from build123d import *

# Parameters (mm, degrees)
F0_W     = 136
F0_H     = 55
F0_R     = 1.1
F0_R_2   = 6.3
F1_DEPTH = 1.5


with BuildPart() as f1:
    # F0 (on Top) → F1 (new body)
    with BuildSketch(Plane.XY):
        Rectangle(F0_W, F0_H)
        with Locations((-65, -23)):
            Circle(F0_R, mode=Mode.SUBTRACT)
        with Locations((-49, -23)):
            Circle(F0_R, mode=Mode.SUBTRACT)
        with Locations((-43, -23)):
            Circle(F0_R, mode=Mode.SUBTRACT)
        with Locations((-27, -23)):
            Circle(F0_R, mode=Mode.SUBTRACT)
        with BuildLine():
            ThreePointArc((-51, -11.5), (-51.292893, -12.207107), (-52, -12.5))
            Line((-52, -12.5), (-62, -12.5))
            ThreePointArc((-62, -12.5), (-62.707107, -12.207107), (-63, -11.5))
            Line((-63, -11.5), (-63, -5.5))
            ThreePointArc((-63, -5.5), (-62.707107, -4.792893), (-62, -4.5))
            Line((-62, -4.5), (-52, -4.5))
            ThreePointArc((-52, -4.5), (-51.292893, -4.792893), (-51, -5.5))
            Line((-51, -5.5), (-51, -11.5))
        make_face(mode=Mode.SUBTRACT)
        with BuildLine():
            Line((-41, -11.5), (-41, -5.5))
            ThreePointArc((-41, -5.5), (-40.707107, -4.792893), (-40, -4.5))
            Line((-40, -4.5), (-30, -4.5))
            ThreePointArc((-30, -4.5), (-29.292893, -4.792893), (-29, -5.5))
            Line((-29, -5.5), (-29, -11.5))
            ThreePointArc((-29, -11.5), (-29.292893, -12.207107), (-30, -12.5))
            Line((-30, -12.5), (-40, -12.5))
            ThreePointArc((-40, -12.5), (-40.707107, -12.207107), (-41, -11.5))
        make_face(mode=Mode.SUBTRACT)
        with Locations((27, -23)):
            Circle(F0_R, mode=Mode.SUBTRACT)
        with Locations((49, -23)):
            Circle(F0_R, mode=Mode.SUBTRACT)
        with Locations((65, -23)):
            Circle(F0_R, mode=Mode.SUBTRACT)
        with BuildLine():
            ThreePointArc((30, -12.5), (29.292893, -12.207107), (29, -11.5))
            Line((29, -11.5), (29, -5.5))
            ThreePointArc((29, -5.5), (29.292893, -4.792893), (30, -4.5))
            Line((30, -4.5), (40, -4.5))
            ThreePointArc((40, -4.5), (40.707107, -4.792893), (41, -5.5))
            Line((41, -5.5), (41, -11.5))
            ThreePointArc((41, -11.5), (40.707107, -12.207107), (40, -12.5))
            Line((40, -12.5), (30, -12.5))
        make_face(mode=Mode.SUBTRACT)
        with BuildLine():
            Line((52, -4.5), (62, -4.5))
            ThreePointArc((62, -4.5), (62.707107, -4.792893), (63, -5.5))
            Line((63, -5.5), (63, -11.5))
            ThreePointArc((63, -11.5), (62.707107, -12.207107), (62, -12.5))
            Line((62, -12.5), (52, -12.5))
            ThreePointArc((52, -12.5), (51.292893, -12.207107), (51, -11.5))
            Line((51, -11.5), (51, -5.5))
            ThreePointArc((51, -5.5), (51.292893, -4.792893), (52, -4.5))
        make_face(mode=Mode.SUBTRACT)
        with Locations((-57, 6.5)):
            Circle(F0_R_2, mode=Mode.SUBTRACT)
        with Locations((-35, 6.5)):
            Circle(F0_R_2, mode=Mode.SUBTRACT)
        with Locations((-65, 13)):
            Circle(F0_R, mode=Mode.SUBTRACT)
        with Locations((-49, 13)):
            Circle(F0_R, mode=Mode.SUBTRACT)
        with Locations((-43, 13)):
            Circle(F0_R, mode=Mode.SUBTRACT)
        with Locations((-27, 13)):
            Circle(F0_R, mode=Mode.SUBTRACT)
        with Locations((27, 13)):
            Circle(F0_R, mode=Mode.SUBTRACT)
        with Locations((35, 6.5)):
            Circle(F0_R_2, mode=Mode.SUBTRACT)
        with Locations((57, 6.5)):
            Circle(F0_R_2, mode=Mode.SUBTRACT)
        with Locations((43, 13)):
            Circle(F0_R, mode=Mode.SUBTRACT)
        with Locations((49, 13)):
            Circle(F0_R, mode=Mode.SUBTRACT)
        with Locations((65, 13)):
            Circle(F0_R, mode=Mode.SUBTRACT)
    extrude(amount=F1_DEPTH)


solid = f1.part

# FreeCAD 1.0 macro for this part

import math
import FreeCAD as App
import Part
import Sketcher
from FreeCAD import Vector

doc = App.newDocument("Part")
body = doc.addObject("PartDesign::Body", "Body")

# Sketch on XY plane
sketch1 = body.newObject("Sketcher::SketchObject", "Sketch")
sketch1.AttachmentSupport = (doc.getObject("XY_Plane"), [""])
sketch1.MapMode = "FlatFace"
sketch1.addGeometry([
    Part.LineSegment(Vector(-68, 27.5, 0), Vector(-68, -27.5, 0)),  # 0
    Part.LineSegment(Vector(-68, -27.5, 0), Vector(68, -27.5, 0)),  # 1
    Part.LineSegment(Vector(68, -27.5, 0), Vector(68, 27.5, 0)),  # 2
    Part.LineSegment(Vector(68, 27.5, 0), Vector(-68, 27.5, 0)),  # 3
    Part.Circle(Vector(-65, -23, 0), Vector(0, 0, 1), 1.1),  # 4
    Part.Circle(Vector(-49, -23, 0), Vector(0, 0, 1), 1.1),  # 5
    Part.Circle(Vector(-43, -23, 0), Vector(0, 0, 1), 1.1),  # 6
    Part.Circle(Vector(-27, -23, 0), Vector(0, 0, 1), 1.1),  # 7
    Part.LineSegment(Vector(-51, -5.5, 0), Vector(-51, -11.5, 0)),  # 8
    Part.ArcOfCircle(Part.Circle(Vector(-51.999999, -11.500001, 0), Vector(0, 0, 1), 0.999999), math.radians(-90.000043), math.radians(0.000043)),  # 9
    Part.LineSegment(Vector(-52, -12.5, 0), Vector(-62, -12.5, 0)),  # 10
    Part.ArcOfCircle(Part.Circle(Vector(-62.000001, -11.500001, 0), Vector(0, 0, 1), 0.999999), math.radians(179.999957), math.radians(270.000043)),  # 11
    Part.LineSegment(Vector(-63, -11.5, 0), Vector(-63, -5.5, 0)),  # 12
    Part.ArcOfCircle(Part.Circle(Vector(-62.000001, -5.499999, 0), Vector(0, 0, 1), 0.999999), math.radians(89.999957), math.radians(180.000043)),  # 13
    Part.LineSegment(Vector(-62, -4.5, 0), Vector(-52, -4.5, 0)),  # 14
    Part.ArcOfCircle(Part.Circle(Vector(-51.999999, -5.499999, 0), Vector(0, 0, 1), 0.999999), math.radians(-0.000043), math.radians(90.000043)),  # 15
    Part.ArcOfCircle(Part.Circle(Vector(-40.000001, -11.500001, 0), Vector(0, 0, 1), 0.999999), math.radians(179.999957), math.radians(270.000043)),  # 16
    Part.LineSegment(Vector(-41, -11.5, 0), Vector(-41, -5.5, 0)),  # 17
    Part.ArcOfCircle(Part.Circle(Vector(-40.000001, -5.499999, 0), Vector(0, 0, 1), 0.999999), math.radians(89.999957), math.radians(180.000043)),  # 18
    Part.LineSegment(Vector(-40, -4.5, 0), Vector(-30, -4.5, 0)),  # 19
    Part.ArcOfCircle(Part.Circle(Vector(-29.999999, -5.499999, 0), Vector(0, 0, 1), 0.999999), math.radians(-0.000043), math.radians(90.000043)),  # 20
    Part.LineSegment(Vector(-29, -5.5, 0), Vector(-29, -11.5, 0)),  # 21
    Part.ArcOfCircle(Part.Circle(Vector(-29.999999, -11.500001, 0), Vector(0, 0, 1), 0.999999), math.radians(-90.000043), math.radians(0.000043)),  # 22
    Part.LineSegment(Vector(-30, -12.5, 0), Vector(-40, -12.5, 0)),  # 23
    Part.Circle(Vector(27, -23, 0), Vector(0, 0, 1), 1.1),  # 24
    Part.Circle(Vector(49, -23, 0), Vector(0, 0, 1), 1.1),  # 25
    Part.Circle(Vector(65, -23, 0), Vector(0, 0, 1), 1.1),  # 26
    Part.LineSegment(Vector(40, -12.5, 0), Vector(30, -12.5, 0)),  # 27
    Part.ArcOfCircle(Part.Circle(Vector(29.999999, -11.500001, 0), Vector(0, 0, 1), 0.999999), math.radians(179.999957), math.radians(270.000043)),  # 28
    Part.LineSegment(Vector(29, -11.5, 0), Vector(29, -5.5, 0)),  # 29
    Part.ArcOfCircle(Part.Circle(Vector(29.999999, -5.499999, 0), Vector(0, 0, 1), 0.999999), math.radians(89.999957), math.radians(180.000043)),  # 30
    Part.LineSegment(Vector(30, -4.5, 0), Vector(40, -4.5, 0)),  # 31
    Part.ArcOfCircle(Part.Circle(Vector(40.000001, -5.499999, 0), Vector(0, 0, 1), 0.999999), math.radians(-0.000043), math.radians(90.000043)),  # 32
    Part.LineSegment(Vector(41, -5.5, 0), Vector(41, -11.5, 0)),  # 33
    Part.ArcOfCircle(Part.Circle(Vector(40.000001, -11.500001, 0), Vector(0, 0, 1), 0.999999), math.radians(-90.000043), math.radians(0.000043)),  # 34
    Part.ArcOfCircle(Part.Circle(Vector(51.999999, -5.499999, 0), Vector(0, 0, 1), 0.999999), math.radians(89.999957), math.radians(180.000043)),  # 35
    Part.LineSegment(Vector(52, -4.5, 0), Vector(62, -4.5, 0)),  # 36
    Part.ArcOfCircle(Part.Circle(Vector(62.000001, -5.499999, 0), Vector(0, 0, 1), 0.999999), math.radians(-0.000043), math.radians(90.000043)),  # 37
    Part.LineSegment(Vector(63, -5.5, 0), Vector(63, -11.5, 0)),  # 38
    Part.ArcOfCircle(Part.Circle(Vector(62.000001, -11.500001, 0), Vector(0, 0, 1), 0.999999), math.radians(-90.000043), math.radians(0.000043)),  # 39
    Part.LineSegment(Vector(62, -12.5, 0), Vector(52, -12.5, 0)),  # 40
    Part.ArcOfCircle(Part.Circle(Vector(51.999999, -11.500001, 0), Vector(0, 0, 1), 0.999999), math.radians(179.999957), math.radians(270.000043)),  # 41
    Part.LineSegment(Vector(51, -11.5, 0), Vector(51, -5.5, 0)),  # 42
    Part.Circle(Vector(-57, 6.5, 0), Vector(0, 0, 1), 6.3),  # 43
    Part.Circle(Vector(-35, 6.5, 0), Vector(0, 0, 1), 6.3),  # 44
    Part.Circle(Vector(-65, 13, 0), Vector(0, 0, 1), 1.1),  # 45
    Part.Circle(Vector(-49, 13, 0), Vector(0, 0, 1), 1.1),  # 46
    Part.Circle(Vector(-43, 13, 0), Vector(0, 0, 1), 1.1),  # 47
    Part.Circle(Vector(-27, 13, 0), Vector(0, 0, 1), 1.1),  # 48
    Part.Circle(Vector(27, 13, 0), Vector(0, 0, 1), 1.1),  # 49
    Part.Circle(Vector(35, 6.5, 0), Vector(0, 0, 1), 6.3),  # 50
    Part.Circle(Vector(57, 6.5, 0), Vector(0, 0, 1), 6.3),  # 51
    Part.Circle(Vector(43, 13, 0), Vector(0, 0, 1), 1.1),  # 52
    Part.Circle(Vector(49, 13, 0), Vector(0, 0, 1), 1.1),  # 53
    Part.Circle(Vector(65, 13, 0), Vector(0, 0, 1), 1.1),  # 54
], False)
sketch1.addConstraint([
    Sketcher.Constraint("Coincident", 0, 2, 1, 1),
    Sketcher.Constraint("Coincident", 1, 2, 2, 1),
    Sketcher.Constraint("Coincident", 2, 2, 3, 1),
    Sketcher.Constraint("Coincident", 3, 2, 0, 1),
    Sketcher.Constraint("Tangent", 8, 2, 9, 2),
    Sketcher.Constraint("Tangent", 9, 1, 10, 1),
    Sketcher.Constraint("Tangent", 10, 2, 11, 2),
    Sketcher.Constraint("Tangent", 11, 1, 12, 1),
    Sketcher.Constraint("Tangent", 12, 2, 13, 2),
    Sketcher.Constraint("Tangent", 13, 1, 14, 1),
    Sketcher.Constraint("Tangent", 14, 2, 15, 2),
    Sketcher.Constraint("Tangent", 15, 1, 8, 1),
    Sketcher.Constraint("Tangent", 16, 1, 17, 1),
    Sketcher.Constraint("Tangent", 17, 2, 18, 2),
    Sketcher.Constraint("Tangent", 18, 1, 19, 1),
    Sketcher.Constraint("Tangent", 19, 2, 20, 2),
    Sketcher.Constraint("Tangent", 20, 1, 21, 1),
    Sketcher.Constraint("Tangent", 21, 2, 22, 2),
    Sketcher.Constraint("Tangent", 22, 1, 23, 1),
    Sketcher.Constraint("Tangent", 23, 2, 16, 2),
    Sketcher.Constraint("Tangent", 27, 2, 28, 2),
    Sketcher.Constraint("Tangent", 28, 1, 29, 1),
    Sketcher.Constraint("Tangent", 29, 2, 30, 2),
    Sketcher.Constraint("Tangent", 30, 1, 31, 1),
    Sketcher.Constraint("Tangent", 31, 2, 32, 2),
    Sketcher.Constraint("Tangent", 32, 1, 33, 1),
    Sketcher.Constraint("Tangent", 33, 2, 34, 2),
    Sketcher.Constraint("Tangent", 34, 1, 27, 1),
    Sketcher.Constraint("Tangent", 35, 1, 36, 1),
    Sketcher.Constraint("Tangent", 36, 2, 37, 2),
    Sketcher.Constraint("Tangent", 37, 1, 38, 1),
    Sketcher.Constraint("Tangent", 38, 2, 39, 2),
    Sketcher.Constraint("Tangent", 39, 1, 40, 1),
    Sketcher.Constraint("Tangent", 40, 2, 41, 2),
    Sketcher.Constraint("Tangent", 41, 1, 42, 1),
    Sketcher.Constraint("Tangent", 42, 2, 35, 2),
    Sketcher.Constraint("Vertical", 0),
    Sketcher.Constraint("Horizontal", 1),
    Sketcher.Constraint("Vertical", 2),
    Sketcher.Constraint("Horizontal", 3),
    Sketcher.Constraint("Vertical", 8),
    Sketcher.Constraint("Horizontal", 10),
    Sketcher.Constraint("Vertical", 12),
    Sketcher.Constraint("Horizontal", 14),
    Sketcher.Constraint("Vertical", 17),
    Sketcher.Constraint("Horizontal", 19),
    Sketcher.Constraint("Vertical", 21),
    Sketcher.Constraint("Horizontal", 23),
    Sketcher.Constraint("Horizontal", 27),
    Sketcher.Constraint("Vertical", 29),
    Sketcher.Constraint("Horizontal", 31),
    Sketcher.Constraint("Vertical", 33),
    Sketcher.Constraint("Horizontal", 36),
    Sketcher.Constraint("Vertical", 38),
    Sketcher.Constraint("Horizontal", 40),
    Sketcher.Constraint("Vertical", 42),
    Sketcher.Constraint("Equal", 4, 5),
    Sketcher.Constraint("Equal", 5, 6),
    Sketcher.Constraint("Equal", 6, 7),
    Sketcher.Constraint("Equal", 9, 11),
    Sketcher.Constraint("Equal", 11, 13),
    Sketcher.Constraint("Equal", 13, 15),
    Sketcher.Constraint("Equal", 15, 16),
    Sketcher.Constraint("Equal", 16, 18),
    Sketcher.Constraint("Equal", 18, 20),
    Sketcher.Constraint("Equal", 20, 22),
    Sketcher.Constraint("Equal", 7, 24),
    Sketcher.Constraint("Equal", 24, 25),
    Sketcher.Constraint("Equal", 25, 26),
    Sketcher.Constraint("Equal", 22, 28),
    Sketcher.Constraint("Equal", 28, 30),
    Sketcher.Constraint("Equal", 30, 32),
    Sketcher.Constraint("Equal", 32, 34),
    Sketcher.Constraint("Equal", 34, 35),
    Sketcher.Constraint("Equal", 35, 37),
    Sketcher.Constraint("Equal", 37, 39),
    Sketcher.Constraint("Equal", 39, 41),
    Sketcher.Constraint("Equal", 43, 44),
    Sketcher.Constraint("Equal", 26, 45),
    Sketcher.Constraint("Equal", 45, 46),
    Sketcher.Constraint("Equal", 46, 47),
    Sketcher.Constraint("Equal", 47, 48),
    Sketcher.Constraint("Equal", 48, 49),
    Sketcher.Constraint("Equal", 44, 50),
    Sketcher.Constraint("Equal", 50, 51),
    Sketcher.Constraint("Equal", 49, 52),
    Sketcher.Constraint("Equal", 52, 53),
    Sketcher.Constraint("Equal", 53, 54),
    Sketcher.Constraint("Symmetric", 0, 2, 2, 2, -1, 1),
    Sketcher.Constraint("Symmetric", 7, 3, 24, 3, -2),
    Sketcher.Constraint("Symmetric", 5, 3, 25, 3, -2),
    Sketcher.Constraint("Symmetric", 4, 3, 26, 3, -2),
    Sketcher.Constraint("Symmetric", 22, 3, 28, 3, -2),
    Sketcher.Constraint("Symmetric", 18, 3, 32, 3, -2),
    Sketcher.Constraint("Symmetric", 15, 3, 35, 3, -2),
    Sketcher.Constraint("Symmetric", 11, 3, 39, 3, -2),
    Sketcher.Constraint("Symmetric", 48, 3, 49, 3, -2),
    Sketcher.Constraint("Symmetric", 44, 3, 50, 3, -2),
    Sketcher.Constraint("Symmetric", 43, 3, 51, 3, -2),
    Sketcher.Constraint("Symmetric", 47, 3, 52, 3, -2),
    Sketcher.Constraint("Symmetric", 46, 3, 53, 3, -2),
    Sketcher.Constraint("Symmetric", 45, 3, 54, 3, -2),
    Sketcher.Constraint("Horizontal", 4, 3, 5, 3),
    Sketcher.Constraint("Horizontal", 5, 3, 6, 3),
    Sketcher.Constraint("Horizontal", 6, 3, 7, 3),
    Sketcher.Constraint("Horizontal", 11, 3, 16, 3),
    Sketcher.Constraint("Horizontal", 15, 3, 18, 3),
    Sketcher.Constraint("Horizontal", 43, 3, 44, 3),
    Sketcher.Constraint("Horizontal", 45, 3, 46, 3),
    Sketcher.Constraint("Horizontal", 46, 3, 47, 3),
    Sketcher.Constraint("Horizontal", 47, 3, 48, 3),
    Sketcher.Constraint("Vertical", 4, 3, 45, 3),
    Sketcher.Constraint("Vertical", 5, 3, 46, 3),
    Sketcher.Constraint("Vertical", 6, 3, 47, 3),
    Sketcher.Constraint("Vertical", 7, 3, 48, 3),
    Sketcher.Constraint("Equal", 14, 19),
    Sketcher.Constraint("Radius", 9, 0.999999),
    Sketcher.Constraint("Diameter", 4, 2.2),
    Sketcher.Constraint("Diameter", 43, 12.6),
    Sketcher.Constraint("DistanceX", 1, 1, 1, 2, 136.0),
    Sketcher.Constraint("DistanceX", 10, 2, 10, 1, 10.0),
    Sketcher.Constraint("DistanceY", 0, 2, 0, 1, 55.0),
    Sketcher.Constraint("DistanceY", 8, 2, 8, 1, 6.0),
    Sketcher.Constraint("DistanceX", 4, 3, -1, 1, 65.0),
    Sketcher.Constraint("DistanceY", 4, 3, -1, 1, 23.0),
    Sketcher.Constraint("DistanceX", 5, 3, -1, 1, 49.0),
    Sketcher.Constraint("DistanceX", 6, 3, -1, 1, 43.0),
    Sketcher.Constraint("DistanceX", 7, 3, -1, 1, 27.0),
    Sketcher.Constraint("DistanceX", 9, 3, -1, 1, 51.999999),
    Sketcher.Constraint("DistanceX", 16, 3, -1, 1, 40.000001),
    Sketcher.Constraint("DistanceX", 43, 3, -1, 1, 57.0),
    Sketcher.Constraint("DistanceX", 44, 3, -1, 1, 35.0),
    Sketcher.Constraint("DistanceY", -1, 1, 45, 3, 13.0),
    Sketcher.Constraint("DistanceY", 9, 3, -1, 1, 11.500001),
    Sketcher.Constraint("DistanceY", -1, 1, 43, 3, 6.5),
])
pad1 = body.newObject("PartDesign::Pad", "Pad")
pad1.Profile = sketch1
pad1.Length = 1.5

doc.recompute()
